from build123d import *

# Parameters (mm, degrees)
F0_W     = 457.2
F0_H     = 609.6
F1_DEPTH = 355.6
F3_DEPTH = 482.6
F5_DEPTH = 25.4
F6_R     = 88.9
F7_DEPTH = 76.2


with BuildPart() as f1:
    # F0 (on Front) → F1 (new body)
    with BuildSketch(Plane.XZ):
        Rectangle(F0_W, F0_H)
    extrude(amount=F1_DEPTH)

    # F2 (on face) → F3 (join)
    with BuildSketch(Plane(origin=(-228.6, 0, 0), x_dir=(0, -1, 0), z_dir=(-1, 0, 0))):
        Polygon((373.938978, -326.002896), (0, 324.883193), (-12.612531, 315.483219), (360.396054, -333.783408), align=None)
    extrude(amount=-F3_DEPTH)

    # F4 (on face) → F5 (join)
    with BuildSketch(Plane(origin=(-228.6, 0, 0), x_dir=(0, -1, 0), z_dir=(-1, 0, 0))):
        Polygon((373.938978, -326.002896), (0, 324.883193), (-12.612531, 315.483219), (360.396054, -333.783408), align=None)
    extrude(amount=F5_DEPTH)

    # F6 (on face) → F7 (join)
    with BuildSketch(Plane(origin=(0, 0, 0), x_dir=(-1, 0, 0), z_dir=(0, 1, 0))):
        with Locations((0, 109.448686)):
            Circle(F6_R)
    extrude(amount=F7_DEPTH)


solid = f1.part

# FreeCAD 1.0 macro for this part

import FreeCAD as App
import Part
import Sketcher

V = App.Vector
Q = App.Units.Quantity


def add_polygon(sketch, points):
    """Adds a closed chain of lines whose ends are joined by coincident constraints."""
    first, n = sketch.GeometryCount, len(points)
    for a, b in zip(points, points[1:] + points[:1]):
        sketch.addGeometry(Part.LineSegment(App.Vector(*a, 0), App.Vector(*b, 0)), False)
    for i in range(n):
        sketch.addConstraint(Sketcher.Constraint("Coincident", first + i, 2, first + (i + 1) % n, 1))

doc = App.newDocument("Part")
body = doc.addObject("PartDesign::Body", "Body")

# Sketch on XZ plane
sketch1 = doc.addObject("Sketcher::SketchObject", "Sketch")
body.addObject(sketch1)
sketch1.AttachmentSupport = (doc.XZ_Plane, [""])
sketch1.MapMode = "FlatFace"
add_polygon(sketch1, [(-228.6, 304.8), (-228.6, -304.8), (228.6, -304.8), (228.6, 304.8)])  # lines 0-3
sketch1.addConstraint(Sketcher.Constraint("Vertical", 0))
sketch1.addConstraint(Sketcher.Constraint("Horizontal", 1))
sketch1.addConstraint(Sketcher.Constraint("Vertical", 2))
sketch1.addConstraint(Sketcher.Constraint("Horizontal", 3))
sketch1.addConstraint(Sketcher.Constraint("Symmetric", 0, 2, 2, 2, -1, 1))
sketch1.addConstraint(Sketcher.Constraint("DistanceX", 1, 1, 1, 2, Q("18 in")))
sketch1.addConstraint(Sketcher.Constraint("DistanceY", 0, 2, 0, 1, Q("24 in")))
pad1 = doc.addObject("PartDesign::Pad", "Pad")
body.addObject(pad1)
pad1.Profile = sketch1
pad1.Length = Q("14 in")

# Sketch on YZ plane
sketch2 = doc.addObject("Sketcher::SketchObject", "Sketch001")
body.addObject(sketch2)
sketch2.AttachmentSupport = (doc.YZ_Plane, [""])
sketch2.MapMode = "FlatFace"
sketch2.AttachmentOffset = App.Placement(V(0, 0, -9 * 25.4), App.Rotation())
add_polygon(sketch2, [(-373.938978, -326.002896), (0, 324.883193), (12.612531, 315.483219), (-360.396054, -333.783408)])  # lines 0-3
sketch2.addConstraint(Sketcher.Constraint("PointOnObject", 0, 2, -2))
sketch2.addConstraint(Sketcher.Constraint("Parallel", 0, 2))
sketch2.addConstraint(Sketcher.Constraint("Perpendicular", 2, 3))
sketch2.addConstraint(Sketcher.Constraint("DistanceY", 2, 2, 0, 2, 658.666601))
sketch2.addConstraint(Sketcher.Constraint("Distance", 1, 15.730081))
sketch2.addConstraint(Sketcher.Constraint("Distance", 2, 748.787391))
sketch2.addConstraint(Sketcher.Constraint("DistanceX", -1, 1, 1, 2, 12.612531))
sketch2.addConstraint(Sketcher.Constraint("DistanceY", -1, 1, 1, 2, 315.483219))
pad2 = doc.addObject("PartDesign::Pad", "Pad001")
body.addObject(pad2)
pad2.Profile = sketch2
pad2.Length = Q("19 in")

# Sketch on YZ plane
sketch3 = doc.addObject("Sketcher::SketchObject", "Sketch002")
body.addObject(sketch3)
sketch3.AttachmentSupport = (doc.YZ_Plane, [""])
sketch3.MapMode = "FlatFace"
sketch3.AttachmentOffset = App.Placement(V(0, 0, -9 * 25.4), App.Rotation())
add_polygon(sketch3, [(-373.938978, -326.002896), (0, 324.883193), (12.612531, 315.483219), (-360.396054, -333.783408)])  # lines 0-3
sketch3.addConstraint(Sketcher.Constraint("PointOnObject", 0, 2, -2))
sketch3.addConstraint(Sketcher.Constraint("Parallel", 0, 2))
sketch3.addConstraint(Sketcher.Constraint("Perpendicular", 2, 3))
sketch3.addConstraint(Sketcher.Constraint("DistanceY", 2, 2, 0, 2, 658.666601))
sketch3.addConstraint(Sketcher.Constraint("Distance", 1, 15.730081))
sketch3.addConstraint(Sketcher.Constraint("Distance", 2, 748.787391))
sketch3.addConstraint(Sketcher.Constraint("DistanceX", -1, 1, 1, 2, 12.612531))
sketch3.addConstraint(Sketcher.Constraint("DistanceY", -1, 1, 1, 2, 315.483219))
pad3 = doc.addObject("PartDesign::Pad", "Pad002")
body.addObject(pad3)
pad3.Profile = sketch3
pad3.Length = Q("1 in")
pad3.Reversed = True

# Sketch on XZ plane
sketch4 = doc.addObject("Sketcher::SketchObject", "Sketch003")
body.addObject(sketch4)
sketch4.AttachmentSupport = (doc.XZ_Plane, [""])
sketch4.MapMode = "FlatFace"
sketch4.addGeometry(Part.Circle(V(0, 109.448686, 0), V(0, 0, 1), 88.9), False)
sketch4.addConstraint(Sketcher.Constraint("PointOnObject", 0, 3, -2))
sketch4.addConstraint(Sketcher.Constraint("Diameter", 0, Q("7 in")))
sketch4.addConstraint(Sketcher.Constraint("DistanceY", -1, 1, 0, 3, 109.448686))
pad4 = doc.addObject("PartDesign::Pad", "Pad003")
body.addObject(pad4)
pad4.Profile = sketch4
pad4.Length = Q("3 in")
pad4.Reversed = True

doc.recompute()
